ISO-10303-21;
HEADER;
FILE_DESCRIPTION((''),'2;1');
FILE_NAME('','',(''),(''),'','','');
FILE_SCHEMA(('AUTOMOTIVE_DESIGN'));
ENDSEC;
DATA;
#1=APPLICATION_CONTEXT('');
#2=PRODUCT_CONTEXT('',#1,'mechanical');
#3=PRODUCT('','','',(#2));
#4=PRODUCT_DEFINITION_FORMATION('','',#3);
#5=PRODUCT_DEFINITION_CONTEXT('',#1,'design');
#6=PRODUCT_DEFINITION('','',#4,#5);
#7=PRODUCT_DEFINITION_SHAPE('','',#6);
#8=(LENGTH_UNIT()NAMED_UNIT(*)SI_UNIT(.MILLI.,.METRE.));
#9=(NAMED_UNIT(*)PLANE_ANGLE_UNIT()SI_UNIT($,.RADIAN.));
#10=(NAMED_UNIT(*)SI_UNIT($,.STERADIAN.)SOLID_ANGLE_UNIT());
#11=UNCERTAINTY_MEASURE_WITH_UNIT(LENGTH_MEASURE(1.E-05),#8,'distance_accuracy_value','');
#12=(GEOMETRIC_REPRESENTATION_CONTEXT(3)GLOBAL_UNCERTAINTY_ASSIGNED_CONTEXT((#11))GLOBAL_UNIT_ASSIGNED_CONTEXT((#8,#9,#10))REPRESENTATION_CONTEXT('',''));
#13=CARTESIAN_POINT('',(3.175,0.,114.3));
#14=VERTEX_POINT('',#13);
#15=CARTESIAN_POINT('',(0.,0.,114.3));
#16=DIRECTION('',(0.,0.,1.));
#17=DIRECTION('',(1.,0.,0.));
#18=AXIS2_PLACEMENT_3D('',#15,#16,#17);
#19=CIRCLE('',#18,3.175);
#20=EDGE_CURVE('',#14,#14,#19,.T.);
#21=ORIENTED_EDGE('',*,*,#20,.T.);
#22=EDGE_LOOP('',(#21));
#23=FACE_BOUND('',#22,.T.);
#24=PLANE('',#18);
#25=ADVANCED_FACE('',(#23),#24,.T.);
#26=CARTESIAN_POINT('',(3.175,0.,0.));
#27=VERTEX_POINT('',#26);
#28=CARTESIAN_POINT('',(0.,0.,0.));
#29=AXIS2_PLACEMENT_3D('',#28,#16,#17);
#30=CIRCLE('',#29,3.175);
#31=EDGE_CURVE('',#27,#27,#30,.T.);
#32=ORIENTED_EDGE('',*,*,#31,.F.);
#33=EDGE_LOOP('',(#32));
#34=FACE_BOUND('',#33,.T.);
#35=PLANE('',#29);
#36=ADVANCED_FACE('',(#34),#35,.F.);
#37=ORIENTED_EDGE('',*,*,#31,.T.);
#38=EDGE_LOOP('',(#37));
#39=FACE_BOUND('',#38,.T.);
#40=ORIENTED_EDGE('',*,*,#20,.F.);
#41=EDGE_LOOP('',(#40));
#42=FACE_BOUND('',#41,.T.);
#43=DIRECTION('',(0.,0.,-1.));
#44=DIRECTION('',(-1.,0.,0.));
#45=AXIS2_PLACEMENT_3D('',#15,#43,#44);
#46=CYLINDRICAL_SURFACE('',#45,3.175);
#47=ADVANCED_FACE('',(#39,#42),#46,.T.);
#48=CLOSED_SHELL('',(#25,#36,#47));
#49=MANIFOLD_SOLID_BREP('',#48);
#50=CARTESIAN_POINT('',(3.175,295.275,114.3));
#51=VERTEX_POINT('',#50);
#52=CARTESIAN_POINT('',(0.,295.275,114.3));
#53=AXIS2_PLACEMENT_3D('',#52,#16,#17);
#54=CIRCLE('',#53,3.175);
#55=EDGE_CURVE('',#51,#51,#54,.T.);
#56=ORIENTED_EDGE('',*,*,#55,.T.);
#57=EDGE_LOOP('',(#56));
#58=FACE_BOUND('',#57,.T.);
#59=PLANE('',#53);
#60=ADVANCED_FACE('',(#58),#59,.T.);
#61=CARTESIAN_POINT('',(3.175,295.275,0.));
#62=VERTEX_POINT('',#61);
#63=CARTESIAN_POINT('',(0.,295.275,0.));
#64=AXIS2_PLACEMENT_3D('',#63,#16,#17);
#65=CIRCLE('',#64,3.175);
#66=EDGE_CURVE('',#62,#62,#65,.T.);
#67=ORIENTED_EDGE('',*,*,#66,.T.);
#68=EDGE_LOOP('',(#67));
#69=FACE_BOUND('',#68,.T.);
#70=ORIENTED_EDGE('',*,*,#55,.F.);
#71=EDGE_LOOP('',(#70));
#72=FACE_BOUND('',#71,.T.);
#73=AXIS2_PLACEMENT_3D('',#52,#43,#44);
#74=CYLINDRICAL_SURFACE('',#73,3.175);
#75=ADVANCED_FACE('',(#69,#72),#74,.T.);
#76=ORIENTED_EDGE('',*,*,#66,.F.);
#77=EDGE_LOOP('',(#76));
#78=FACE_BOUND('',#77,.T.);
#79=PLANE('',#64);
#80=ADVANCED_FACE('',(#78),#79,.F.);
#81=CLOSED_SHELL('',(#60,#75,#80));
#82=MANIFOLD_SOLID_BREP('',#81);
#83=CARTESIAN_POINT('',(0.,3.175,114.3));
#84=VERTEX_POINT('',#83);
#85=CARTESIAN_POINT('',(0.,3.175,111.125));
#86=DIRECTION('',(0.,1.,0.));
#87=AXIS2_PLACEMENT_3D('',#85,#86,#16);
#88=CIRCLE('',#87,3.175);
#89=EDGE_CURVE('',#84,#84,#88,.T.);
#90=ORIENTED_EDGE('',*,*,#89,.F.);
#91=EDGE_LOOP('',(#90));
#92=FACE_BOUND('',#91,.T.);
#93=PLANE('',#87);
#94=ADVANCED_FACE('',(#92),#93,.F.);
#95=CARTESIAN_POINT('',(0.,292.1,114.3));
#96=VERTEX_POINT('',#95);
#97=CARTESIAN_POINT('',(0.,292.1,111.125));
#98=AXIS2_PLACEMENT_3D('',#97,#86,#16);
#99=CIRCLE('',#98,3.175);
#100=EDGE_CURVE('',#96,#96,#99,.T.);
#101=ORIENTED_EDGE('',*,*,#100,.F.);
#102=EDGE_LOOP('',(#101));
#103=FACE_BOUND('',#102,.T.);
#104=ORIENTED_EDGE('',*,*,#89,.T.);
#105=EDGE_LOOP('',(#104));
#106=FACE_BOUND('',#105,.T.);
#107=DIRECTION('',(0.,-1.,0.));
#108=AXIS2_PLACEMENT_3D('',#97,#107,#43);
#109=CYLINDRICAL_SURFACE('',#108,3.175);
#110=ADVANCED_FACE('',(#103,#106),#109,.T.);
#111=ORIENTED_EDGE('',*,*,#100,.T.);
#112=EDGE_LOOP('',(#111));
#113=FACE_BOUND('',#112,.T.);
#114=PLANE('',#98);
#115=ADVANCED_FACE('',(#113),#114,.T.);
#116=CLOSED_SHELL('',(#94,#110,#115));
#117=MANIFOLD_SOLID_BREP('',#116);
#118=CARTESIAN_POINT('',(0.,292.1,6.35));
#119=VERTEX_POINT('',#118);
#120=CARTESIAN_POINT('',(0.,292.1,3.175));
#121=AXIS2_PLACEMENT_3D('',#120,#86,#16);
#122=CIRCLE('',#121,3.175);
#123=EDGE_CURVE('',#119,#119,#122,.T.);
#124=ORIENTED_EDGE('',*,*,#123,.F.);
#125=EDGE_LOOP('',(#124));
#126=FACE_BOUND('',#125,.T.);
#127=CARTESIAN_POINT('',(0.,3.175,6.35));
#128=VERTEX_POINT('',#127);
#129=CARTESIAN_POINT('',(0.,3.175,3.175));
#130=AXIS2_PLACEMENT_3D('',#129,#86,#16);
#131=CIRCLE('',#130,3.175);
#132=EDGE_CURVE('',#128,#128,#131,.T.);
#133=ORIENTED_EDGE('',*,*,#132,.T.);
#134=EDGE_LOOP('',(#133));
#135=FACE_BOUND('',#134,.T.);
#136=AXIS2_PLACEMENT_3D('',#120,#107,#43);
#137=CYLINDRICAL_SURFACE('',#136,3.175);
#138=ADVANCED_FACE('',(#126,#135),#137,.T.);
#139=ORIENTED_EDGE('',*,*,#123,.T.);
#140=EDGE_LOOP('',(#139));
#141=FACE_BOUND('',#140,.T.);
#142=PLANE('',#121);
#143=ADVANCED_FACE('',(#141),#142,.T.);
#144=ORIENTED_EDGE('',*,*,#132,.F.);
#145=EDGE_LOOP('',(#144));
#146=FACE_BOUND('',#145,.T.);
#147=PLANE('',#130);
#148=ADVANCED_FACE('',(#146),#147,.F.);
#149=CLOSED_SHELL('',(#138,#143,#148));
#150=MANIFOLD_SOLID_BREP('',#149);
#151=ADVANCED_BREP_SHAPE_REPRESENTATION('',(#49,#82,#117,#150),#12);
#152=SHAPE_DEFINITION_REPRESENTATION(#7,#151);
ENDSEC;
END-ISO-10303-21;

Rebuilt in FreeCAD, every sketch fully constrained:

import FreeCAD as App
import Part
import Sketcher
Q = App.Units.Quantity

doc = App.newDocument("Part")
params = doc.addObject("Spreadsheet::Sheet", "Params")
for row, (alias, value) in enumerate([
    ("sketch1_diameter", "0.25 in"),
    ("pad1_length", "4.5 in"),
    ("sketch2_diameter", "0.25 in"),
    ("pad2_length", "11.375 in"),
    ("sketch3_diameter", "0.25 in"),
    ("pad3_length", "11.375 in"),
    ("sketch4_diameter", "0.25 in"),
    ("pad4_length", "4.5 in"),
], start=1):
    params.set(f"A{row}", alias)
    params.set(f"B{row}", "=" + value)
    params.setAlias(f"B{row}", alias)

body = doc.addObject("PartDesign::Body", "Body")

# Sketch on XY plane
sketch1 = body.newObject("Sketcher::SketchObject", "Sketch")
sketch1.AttachmentSupport = (doc.getObject("XY_Plane"), [""])
sketch1.MapMode = "FlatFace"
sketch1.addGeometry(Part.Circle(App.Vector(0, 0, 0), App.Vector(0, 0, 1), 3.175), False)
sketch1.addConstraint([
    Sketcher.Constraint("Coincident", 0, 3, -1, 1),
    Sketcher.Constraint("Diameter", 0, Q("0.25 in")),
])
sketch1.setExpression("Constraints[1]", "Params.sketch1_diameter")
pad1 = body.newObject("PartDesign::Pad", "Pad")
pad1.Profile = sketch1
pad1.setExpression("Length", "Params.pad1_length")
body2 = doc.addObject("PartDesign::Body", "Body001")

# Sketch on XZ plane
sketch2 = body2.newObject("Sketcher::SketchObject", "Sketch001")
sketch2.AttachmentSupport = (doc.getObject("XZ_Plane001"), [""])
sketch2.MapMode = "FlatFace"
sketch2.AttachmentOffset = App.Placement(App.Vector(0, 0, -0.125 * 25.4), App.Rotation())
sketch2.addGeometry(Part.Circle(App.Vector(0, 111.125, 0), App.Vector(0, 0, 1), 3.175), False)
sketch2.addConstraint([
    Sketcher.Constraint("PointOnObject", 0, 3, -2),
    Sketcher.Constraint("Diameter", 0, Q("0.25 in")),
    Sketcher.Constraint("DistanceY", -1, 1, 0, 3, Q("4.375 in")),
])
sketch2.setExpression("Constraints[1]", "Params.sketch2_diameter")
pad2 = body2.newObject("PartDesign::Pad", "Pad001")
pad2.Profile = sketch2
pad2.setExpression("Length", "Params.pad2_length")
pad2.Reversed = True
body3 = doc.addObject("PartDesign::Body", "Body002")

# Sketch on XZ plane
sketch3 = body3.newObject("Sketcher::SketchObject", "Sketch002")
sketch3.AttachmentSupport = (doc.getObject("XZ_Plane002"), [""])
sketch3.MapMode = "FlatFace"
sketch3.AttachmentOffset = App.Placement(App.Vector(0, 0, -0.125 * 25.4), App.Rotation())
sketch3.addGeometry(Part.Circle(App.Vector(0, 3.175, 0), App.Vector(0, 0, 1), 3.175), False)
sketch3.addConstraint([
    Sketcher.Constraint("PointOnObject", 0, 3, -2),
    Sketcher.Constraint("Diameter", 0, Q("0.25 in")),
    Sketcher.Constraint("DistanceY", -1, 1, 0, 3, Q("0.125 in")),
])
sketch3.setExpression("Constraints[1]", "Params.sketch3_diameter")
pad3 = body3.newObject("PartDesign::Pad", "Pad002")
pad3.Profile = sketch3
pad3.setExpression("Length", "Params.pad3_length")
pad3.Reversed = True
body4 = doc.addObject("PartDesign::Body", "Body003")

# Sketch on XY plane
sketch4 = body4.newObject("Sketcher::SketchObject", "Sketch003")
sketch4.AttachmentSupport = (doc.getObject("XY_Plane003"), [""])
sketch4.MapMode = "FlatFace"
sketch4.addGeometry(Part.Circle(App.Vector(0, 295.275, 0), App.Vector(0, 0, 1), 3.175), False)
sketch4.addConstraint([
    Sketcher.Constraint("PointOnObject", 0, 3, -2),
    Sketcher.Constraint("Diameter", 0, Q("0.25 in")),
    Sketcher.Constraint("DistanceY", -1, 1, 0, 3, Q("11.625 in")),
])
sketch4.setExpression("Constraints[1]", "Params.sketch4_diameter")
pad4 = body4.newObject("PartDesign::Pad", "Pad003")
pad4.Profile = sketch4
pad4.setExpression("Length", "Params.pad4_length")

doc.recompute()
